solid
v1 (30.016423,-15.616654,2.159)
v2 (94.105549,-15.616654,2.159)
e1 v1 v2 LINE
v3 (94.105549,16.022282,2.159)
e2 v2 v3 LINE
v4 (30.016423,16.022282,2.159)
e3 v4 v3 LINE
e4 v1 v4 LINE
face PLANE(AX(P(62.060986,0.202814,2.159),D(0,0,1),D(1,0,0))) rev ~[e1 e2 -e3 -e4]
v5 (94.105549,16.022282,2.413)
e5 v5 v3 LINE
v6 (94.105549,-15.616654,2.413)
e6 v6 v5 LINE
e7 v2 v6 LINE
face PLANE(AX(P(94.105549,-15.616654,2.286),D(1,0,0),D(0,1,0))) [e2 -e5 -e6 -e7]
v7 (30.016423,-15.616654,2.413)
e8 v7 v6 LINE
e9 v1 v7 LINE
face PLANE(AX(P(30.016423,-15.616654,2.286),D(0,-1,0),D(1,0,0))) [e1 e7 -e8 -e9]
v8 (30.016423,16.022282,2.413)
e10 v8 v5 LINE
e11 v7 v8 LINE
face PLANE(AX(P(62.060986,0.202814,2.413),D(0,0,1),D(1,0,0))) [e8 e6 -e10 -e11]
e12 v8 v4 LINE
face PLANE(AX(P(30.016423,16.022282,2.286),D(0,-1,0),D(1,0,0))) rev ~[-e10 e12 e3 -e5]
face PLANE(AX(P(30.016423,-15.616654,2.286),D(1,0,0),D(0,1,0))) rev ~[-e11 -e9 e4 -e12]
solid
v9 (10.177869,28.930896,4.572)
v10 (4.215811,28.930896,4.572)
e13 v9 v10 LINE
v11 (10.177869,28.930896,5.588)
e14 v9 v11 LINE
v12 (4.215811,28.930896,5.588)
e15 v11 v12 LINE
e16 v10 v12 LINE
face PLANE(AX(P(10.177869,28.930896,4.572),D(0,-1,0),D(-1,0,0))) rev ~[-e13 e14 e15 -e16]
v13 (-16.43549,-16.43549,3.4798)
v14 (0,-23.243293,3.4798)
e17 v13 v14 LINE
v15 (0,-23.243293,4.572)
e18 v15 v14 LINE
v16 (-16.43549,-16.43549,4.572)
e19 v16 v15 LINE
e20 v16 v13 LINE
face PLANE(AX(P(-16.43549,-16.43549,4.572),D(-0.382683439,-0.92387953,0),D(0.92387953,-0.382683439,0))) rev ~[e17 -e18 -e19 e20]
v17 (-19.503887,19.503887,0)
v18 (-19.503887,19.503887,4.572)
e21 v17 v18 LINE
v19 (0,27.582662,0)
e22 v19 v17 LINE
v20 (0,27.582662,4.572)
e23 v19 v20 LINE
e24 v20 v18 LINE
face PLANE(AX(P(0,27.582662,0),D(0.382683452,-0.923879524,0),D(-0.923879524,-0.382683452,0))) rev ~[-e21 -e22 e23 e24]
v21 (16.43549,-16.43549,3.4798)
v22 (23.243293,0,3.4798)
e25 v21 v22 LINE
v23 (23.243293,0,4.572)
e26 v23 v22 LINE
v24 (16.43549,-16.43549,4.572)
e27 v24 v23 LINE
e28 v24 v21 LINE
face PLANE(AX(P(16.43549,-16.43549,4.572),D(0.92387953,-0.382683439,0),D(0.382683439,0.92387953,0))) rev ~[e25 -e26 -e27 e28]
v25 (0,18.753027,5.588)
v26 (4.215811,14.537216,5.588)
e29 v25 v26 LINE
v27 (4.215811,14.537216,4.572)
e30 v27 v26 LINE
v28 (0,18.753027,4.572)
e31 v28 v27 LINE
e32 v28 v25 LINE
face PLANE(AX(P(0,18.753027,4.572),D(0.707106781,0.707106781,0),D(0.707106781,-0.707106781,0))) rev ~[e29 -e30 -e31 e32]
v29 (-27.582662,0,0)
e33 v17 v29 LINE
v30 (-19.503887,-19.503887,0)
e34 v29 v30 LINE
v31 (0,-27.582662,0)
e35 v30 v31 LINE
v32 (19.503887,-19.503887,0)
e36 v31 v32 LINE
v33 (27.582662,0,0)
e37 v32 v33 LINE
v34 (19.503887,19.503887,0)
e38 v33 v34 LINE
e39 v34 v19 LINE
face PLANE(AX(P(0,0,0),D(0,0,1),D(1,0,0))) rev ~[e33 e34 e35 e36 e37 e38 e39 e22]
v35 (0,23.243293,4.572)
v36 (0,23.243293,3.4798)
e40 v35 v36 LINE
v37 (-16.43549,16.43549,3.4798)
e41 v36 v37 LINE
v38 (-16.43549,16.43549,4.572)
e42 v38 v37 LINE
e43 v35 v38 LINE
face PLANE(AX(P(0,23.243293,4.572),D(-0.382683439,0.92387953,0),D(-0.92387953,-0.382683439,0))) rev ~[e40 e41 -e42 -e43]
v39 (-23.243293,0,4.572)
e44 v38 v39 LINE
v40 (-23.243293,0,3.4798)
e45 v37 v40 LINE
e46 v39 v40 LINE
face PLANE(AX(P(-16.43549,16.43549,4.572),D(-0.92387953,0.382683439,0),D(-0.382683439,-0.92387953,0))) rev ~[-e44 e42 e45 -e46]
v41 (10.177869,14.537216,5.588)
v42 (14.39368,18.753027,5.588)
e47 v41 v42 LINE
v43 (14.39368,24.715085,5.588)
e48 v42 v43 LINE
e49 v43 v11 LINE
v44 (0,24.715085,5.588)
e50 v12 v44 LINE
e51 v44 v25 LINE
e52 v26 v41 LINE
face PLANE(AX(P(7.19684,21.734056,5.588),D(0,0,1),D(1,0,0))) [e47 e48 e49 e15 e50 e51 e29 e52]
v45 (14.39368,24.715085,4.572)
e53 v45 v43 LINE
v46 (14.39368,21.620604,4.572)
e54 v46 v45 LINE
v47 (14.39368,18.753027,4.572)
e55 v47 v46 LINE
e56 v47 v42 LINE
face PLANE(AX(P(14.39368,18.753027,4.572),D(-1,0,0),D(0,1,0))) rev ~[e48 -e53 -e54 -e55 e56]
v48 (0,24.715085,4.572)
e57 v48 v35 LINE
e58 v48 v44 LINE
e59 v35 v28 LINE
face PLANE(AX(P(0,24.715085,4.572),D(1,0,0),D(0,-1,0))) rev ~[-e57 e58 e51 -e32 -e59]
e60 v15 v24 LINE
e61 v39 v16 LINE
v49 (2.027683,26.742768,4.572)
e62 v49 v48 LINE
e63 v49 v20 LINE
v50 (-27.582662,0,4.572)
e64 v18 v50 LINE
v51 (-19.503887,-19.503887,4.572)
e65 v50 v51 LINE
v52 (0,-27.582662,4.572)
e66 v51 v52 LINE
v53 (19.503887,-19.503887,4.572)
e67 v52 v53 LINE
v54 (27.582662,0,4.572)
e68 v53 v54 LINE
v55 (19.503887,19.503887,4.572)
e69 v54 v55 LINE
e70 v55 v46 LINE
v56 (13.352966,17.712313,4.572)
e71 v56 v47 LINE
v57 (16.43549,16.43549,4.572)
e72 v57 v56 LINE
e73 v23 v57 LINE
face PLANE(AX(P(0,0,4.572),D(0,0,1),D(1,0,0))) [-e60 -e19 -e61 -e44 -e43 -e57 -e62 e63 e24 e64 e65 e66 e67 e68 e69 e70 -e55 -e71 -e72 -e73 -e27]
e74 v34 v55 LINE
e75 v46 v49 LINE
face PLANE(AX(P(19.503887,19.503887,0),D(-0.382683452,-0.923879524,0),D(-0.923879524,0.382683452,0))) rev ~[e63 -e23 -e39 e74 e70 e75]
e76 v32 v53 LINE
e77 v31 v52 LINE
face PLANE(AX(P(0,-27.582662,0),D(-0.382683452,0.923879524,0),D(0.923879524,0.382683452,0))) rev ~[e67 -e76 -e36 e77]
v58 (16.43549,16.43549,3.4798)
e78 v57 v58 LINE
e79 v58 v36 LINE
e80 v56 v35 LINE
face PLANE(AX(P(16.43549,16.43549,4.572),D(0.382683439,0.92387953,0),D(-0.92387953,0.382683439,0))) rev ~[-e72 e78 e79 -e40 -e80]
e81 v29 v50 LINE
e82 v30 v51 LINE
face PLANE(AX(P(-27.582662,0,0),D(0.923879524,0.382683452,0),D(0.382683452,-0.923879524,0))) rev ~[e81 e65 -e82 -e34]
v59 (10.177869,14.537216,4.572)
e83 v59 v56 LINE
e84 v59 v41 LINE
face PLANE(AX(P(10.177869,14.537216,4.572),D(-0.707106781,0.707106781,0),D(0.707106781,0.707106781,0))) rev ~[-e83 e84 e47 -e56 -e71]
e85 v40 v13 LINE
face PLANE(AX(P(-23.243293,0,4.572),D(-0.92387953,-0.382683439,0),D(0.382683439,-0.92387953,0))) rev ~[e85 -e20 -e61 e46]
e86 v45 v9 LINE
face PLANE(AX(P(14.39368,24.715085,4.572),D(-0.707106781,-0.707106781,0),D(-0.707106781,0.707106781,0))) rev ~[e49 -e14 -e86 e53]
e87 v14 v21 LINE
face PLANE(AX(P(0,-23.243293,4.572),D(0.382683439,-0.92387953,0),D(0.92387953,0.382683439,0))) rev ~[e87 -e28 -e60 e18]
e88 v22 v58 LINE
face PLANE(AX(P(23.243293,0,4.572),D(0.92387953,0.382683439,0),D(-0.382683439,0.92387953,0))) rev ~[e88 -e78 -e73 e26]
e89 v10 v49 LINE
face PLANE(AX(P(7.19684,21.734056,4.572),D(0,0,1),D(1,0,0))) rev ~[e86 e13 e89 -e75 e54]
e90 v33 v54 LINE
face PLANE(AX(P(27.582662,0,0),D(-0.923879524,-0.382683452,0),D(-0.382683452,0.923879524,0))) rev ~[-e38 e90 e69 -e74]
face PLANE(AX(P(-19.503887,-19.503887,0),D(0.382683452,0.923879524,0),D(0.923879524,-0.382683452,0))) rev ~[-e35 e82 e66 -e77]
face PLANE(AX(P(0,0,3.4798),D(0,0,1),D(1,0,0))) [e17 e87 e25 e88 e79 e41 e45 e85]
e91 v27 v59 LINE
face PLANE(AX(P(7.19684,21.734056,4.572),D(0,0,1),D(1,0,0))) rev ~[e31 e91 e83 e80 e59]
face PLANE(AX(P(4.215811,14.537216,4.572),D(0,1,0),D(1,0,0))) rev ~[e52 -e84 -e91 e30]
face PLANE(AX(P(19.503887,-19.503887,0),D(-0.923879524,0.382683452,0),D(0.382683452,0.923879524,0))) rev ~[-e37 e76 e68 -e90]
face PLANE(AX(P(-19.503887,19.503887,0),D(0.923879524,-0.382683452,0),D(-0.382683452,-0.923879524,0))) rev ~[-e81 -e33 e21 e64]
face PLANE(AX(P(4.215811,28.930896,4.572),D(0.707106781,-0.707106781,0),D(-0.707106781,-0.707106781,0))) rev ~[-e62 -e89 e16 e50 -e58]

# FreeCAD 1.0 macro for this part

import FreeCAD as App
import Part
import Sketcher
from FreeCAD import Vector
Q = App.Units.Quantity


def add_polygon(sketch, points):
    """Adds a closed chain of lines whose ends are joined by coincident constraints."""
    first, n = sketch.GeometryCount, len(points)
    for a, b in zip(points, points[1:] + points[:1]):
        sketch.addGeometry(Part.LineSegment(App.Vector(*a, 0), App.Vector(*b, 0)), False)
    for i in range(n):
        sketch.addConstraint(Sketcher.Constraint("Coincident", first + i, 2, first + (i + 1) % n, 1))

doc = App.newDocument("Part")
params = doc.addObject("Spreadsheet::Sheet", "Params")
for row, (alias, value) in enumerate([
    ("pad1_length", "0.18 in"),
    ("pocket1_length", "0.043 in"),
    ("pad2_length", "0.04 in"),
    ("pad3_length", "0.01 in"),
], start=1):
    params.set(f"A{row}", alias)
    params.set(f"B{row}", "=" + value)
    params.setAlias(f"B{row}", alias)

body = doc.addObject("PartDesign::Body", "Body")

sketch1 = body.newObject("Sketcher::SketchObject", "Sketch")
sketch1.AttachmentSupport = (doc.getObject("XY_Plane"), [""])
sketch1.MapMode = "FlatFace"
add_polygon(sketch1, [(0, -28), (20, -20), (28, 0), (20, 20), (0, 28), (-20, 20), (-28, 0), (-20, -20)])
sketch1.addConstraint(Sketcher.Constraint("Symmetric", 0, 2, 4, 2, -1, 1))
sketch1.addConstraint(Sketcher.Constraint("Symmetric", 1, 2, 5, 2, -1, 1))
sketch1.addConstraint(Sketcher.Constraint("Symmetric", 2, 2, 6, 2, -1, 1))
sketch1.addConstraint(Sketcher.Constraint("Symmetric", 3, 2, 7, 2, -1, 1))
sketch1.addConstraint(Sketcher.Constraint("Symmetric", 2, 2, 4, 2, -2))
sketch1.addConstraint(Sketcher.Constraint("PointOnObject", 1, 2, -1))
sketch1.addConstraint(Sketcher.Constraint("PointOnObject", 3, 2, -2))
sketch1.addConstraint(Sketcher.Constraint("Perpendicular", 0, 2))
sketch1.addConstraint(Sketcher.Constraint("Equal", 0, 1))
sketch1.addConstraint(Sketcher.Constraint("Angle", 0, Q("22.500001 deg")))
sketch1.addConstraint(Sketcher.Constraint("DistanceX", -1, 1, 1, 2, 27.582662))
pad1 = body.newObject("PartDesign::Pad", "Pad")
pad1.Profile = sketch1
pad1.setExpression("Length", "Params.pad1_length")

sketch2 = body.newObject("Sketcher::SketchObject", "Sketch001")
sketch2.AttachmentSupport = (doc.getObject("XY_Plane"), [""])
sketch2.MapMode = "FlatFace"
sketch2.AttachmentOffset = App.Placement(Vector(0, 0, 0.18 * 25.4), App.Rotation())
add_polygon(sketch2, [(0, -23), (16, -16), (23, 0), (16, 16), (0, 23), (-16, 16), (-23, 0), (-16, -16)])
sketch2.addConstraint(Sketcher.Constraint("Symmetric", 0, 2, 4, 2, -1, 1))
sketch2.addConstraint(Sketcher.Constraint("Symmetric", 1, 2, 5, 2, -1, 1))
sketch2.addConstraint(Sketcher.Constraint("Symmetric", 2, 2, 6, 2, -1, 1))
sketch2.addConstraint(Sketcher.Constraint("Symmetric", 3, 2, 7, 2, -1, 1))
sketch2.addConstraint(Sketcher.Constraint("Symmetric", 2, 2, 4, 2, -2))
sketch2.addConstraint(Sketcher.Constraint("PointOnObject", 1, 2, -1))
sketch2.addConstraint(Sketcher.Constraint("PointOnObject", 3, 2, -2))
sketch2.addConstraint(Sketcher.Constraint("Perpendicular", 0, 2))
sketch2.addConstraint(Sketcher.Constraint("Equal", 0, 1))
sketch2.addConstraint(Sketcher.Constraint("Angle", 0, Q("22.5 deg")))
sketch2.addConstraint(Sketcher.Constraint("DistanceX", -1, 1, 0, 2, 16.43549))
pocket1 = body.newObject("PartDesign::Pocket", "Pocket")
pocket1.Profile = sketch2
pocket1.setExpression("Length", "Params.pocket1_length")

sketch3 = body.newObject("Sketcher::SketchObject", "Sketch002")
sketch3.AttachmentSupport = (doc.getObject("XY_Plane"), [""])
sketch3.MapMode = "FlatFace"
sketch3.AttachmentOffset = App.Placement(Vector(0, 0, 0.18 * 25.4), App.Rotation())
add_polygon(sketch3, [(4, 15), (10, 15), (14, 19), (14, 25), (10, 29), (4, 29), (0, 25), (0, 19)])
sketch3.addConstraint(Sketcher.Constraint("Horizontal", 0))
sketch3.addConstraint(Sketcher.Constraint("Vertical", 2))
sketch3.addConstraint(Sketcher.Constraint("Horizontal", 4))
sketch3.addConstraint(Sketcher.Constraint("Vertical", 6))
sketch3.addConstraint(Sketcher.Constraint("PointOnObject", 5, 2, -2))
sketch3.addConstraint(Sketcher.Constraint("Perpendicular", 1, 3))
sketch3.addConstraint(Sketcher.Constraint("Perpendicular", 3, 5))
sketch3.addConstraint(Sketcher.Constraint("Perpendicular", 5, 7))
sketch3.addConstraint(Sketcher.Constraint("Horizontal", 2, 2, 5, 2))
sketch3.addConstraint(Sketcher.Constraint("Horizontal", 1, 2, 6, 2))
sketch3.addConstraint(Sketcher.Constraint("Vertical", 0, 2, 3, 2))
sketch3.addConstraint(Sketcher.Constraint("Vertical", 4, 2, 7, 2))
sketch3.addConstraint(Sketcher.Constraint("Equal", 4, 2))
sketch3.addConstraint(Sketcher.Constraint("DistanceX", 0, 1, 0, 2, 5.962058))
sketch3.addConstraint(Sketcher.Constraint("DistanceX", -1, 1, 0, 2, 10.177869))
sketch3.addConstraint(Sketcher.Constraint("DistanceY", -1, 1, 0, 2, 14.537216))
pad2 = body.newObject("PartDesign::Pad", "Pad001")
pad2.Profile = sketch3
pad2.setExpression("Length", "Params.pad2_length")
body2 = doc.addObject("PartDesign::Body", "Body001")

sketch4 = body2.newObject("Sketcher::SketchObject", "Sketch003")
sketch4.AttachmentSupport = (doc.getObject("XY_Plane001"), [""])
sketch4.MapMode = "FlatFace"
sketch4.AttachmentOffset = App.Placement(Vector(0, 0, 0.09 * 25.4), App.Rotation())
add_polygon(sketch4, [(30, 16), (30, -16), (94, -16), (94, 16)])
sketch4.addConstraint(Sketcher.Constraint("Vertical", 0))
sketch4.addConstraint(Sketcher.Constraint("Horizontal", 1))
sketch4.addConstraint(Sketcher.Constraint("Vertical", 2))
sketch4.addConstraint(Sketcher.Constraint("Horizontal", 3))
sketch4.addConstraint(Sketcher.Constraint("DistanceX", 1, 1, 1, 2, 64.089127))
sketch4.addConstraint(Sketcher.Constraint("DistanceY", 0, 2, 0, 1, 31.638936))
sketch4.addConstraint(Sketcher.Constraint("DistanceX", -1, 1, 1, 2, 94.105549))
sketch4.addConstraint(Sketcher.Constraint("DistanceY", 0, 2, -1, 1, 15.616654))
pad3 = body2.newObject("PartDesign::Pad", "Pad002")
pad3.Profile = sketch4
pad3.setExpression("Length", "Params.pad3_length")
pad3.Midplane = True

doc.recompute()
